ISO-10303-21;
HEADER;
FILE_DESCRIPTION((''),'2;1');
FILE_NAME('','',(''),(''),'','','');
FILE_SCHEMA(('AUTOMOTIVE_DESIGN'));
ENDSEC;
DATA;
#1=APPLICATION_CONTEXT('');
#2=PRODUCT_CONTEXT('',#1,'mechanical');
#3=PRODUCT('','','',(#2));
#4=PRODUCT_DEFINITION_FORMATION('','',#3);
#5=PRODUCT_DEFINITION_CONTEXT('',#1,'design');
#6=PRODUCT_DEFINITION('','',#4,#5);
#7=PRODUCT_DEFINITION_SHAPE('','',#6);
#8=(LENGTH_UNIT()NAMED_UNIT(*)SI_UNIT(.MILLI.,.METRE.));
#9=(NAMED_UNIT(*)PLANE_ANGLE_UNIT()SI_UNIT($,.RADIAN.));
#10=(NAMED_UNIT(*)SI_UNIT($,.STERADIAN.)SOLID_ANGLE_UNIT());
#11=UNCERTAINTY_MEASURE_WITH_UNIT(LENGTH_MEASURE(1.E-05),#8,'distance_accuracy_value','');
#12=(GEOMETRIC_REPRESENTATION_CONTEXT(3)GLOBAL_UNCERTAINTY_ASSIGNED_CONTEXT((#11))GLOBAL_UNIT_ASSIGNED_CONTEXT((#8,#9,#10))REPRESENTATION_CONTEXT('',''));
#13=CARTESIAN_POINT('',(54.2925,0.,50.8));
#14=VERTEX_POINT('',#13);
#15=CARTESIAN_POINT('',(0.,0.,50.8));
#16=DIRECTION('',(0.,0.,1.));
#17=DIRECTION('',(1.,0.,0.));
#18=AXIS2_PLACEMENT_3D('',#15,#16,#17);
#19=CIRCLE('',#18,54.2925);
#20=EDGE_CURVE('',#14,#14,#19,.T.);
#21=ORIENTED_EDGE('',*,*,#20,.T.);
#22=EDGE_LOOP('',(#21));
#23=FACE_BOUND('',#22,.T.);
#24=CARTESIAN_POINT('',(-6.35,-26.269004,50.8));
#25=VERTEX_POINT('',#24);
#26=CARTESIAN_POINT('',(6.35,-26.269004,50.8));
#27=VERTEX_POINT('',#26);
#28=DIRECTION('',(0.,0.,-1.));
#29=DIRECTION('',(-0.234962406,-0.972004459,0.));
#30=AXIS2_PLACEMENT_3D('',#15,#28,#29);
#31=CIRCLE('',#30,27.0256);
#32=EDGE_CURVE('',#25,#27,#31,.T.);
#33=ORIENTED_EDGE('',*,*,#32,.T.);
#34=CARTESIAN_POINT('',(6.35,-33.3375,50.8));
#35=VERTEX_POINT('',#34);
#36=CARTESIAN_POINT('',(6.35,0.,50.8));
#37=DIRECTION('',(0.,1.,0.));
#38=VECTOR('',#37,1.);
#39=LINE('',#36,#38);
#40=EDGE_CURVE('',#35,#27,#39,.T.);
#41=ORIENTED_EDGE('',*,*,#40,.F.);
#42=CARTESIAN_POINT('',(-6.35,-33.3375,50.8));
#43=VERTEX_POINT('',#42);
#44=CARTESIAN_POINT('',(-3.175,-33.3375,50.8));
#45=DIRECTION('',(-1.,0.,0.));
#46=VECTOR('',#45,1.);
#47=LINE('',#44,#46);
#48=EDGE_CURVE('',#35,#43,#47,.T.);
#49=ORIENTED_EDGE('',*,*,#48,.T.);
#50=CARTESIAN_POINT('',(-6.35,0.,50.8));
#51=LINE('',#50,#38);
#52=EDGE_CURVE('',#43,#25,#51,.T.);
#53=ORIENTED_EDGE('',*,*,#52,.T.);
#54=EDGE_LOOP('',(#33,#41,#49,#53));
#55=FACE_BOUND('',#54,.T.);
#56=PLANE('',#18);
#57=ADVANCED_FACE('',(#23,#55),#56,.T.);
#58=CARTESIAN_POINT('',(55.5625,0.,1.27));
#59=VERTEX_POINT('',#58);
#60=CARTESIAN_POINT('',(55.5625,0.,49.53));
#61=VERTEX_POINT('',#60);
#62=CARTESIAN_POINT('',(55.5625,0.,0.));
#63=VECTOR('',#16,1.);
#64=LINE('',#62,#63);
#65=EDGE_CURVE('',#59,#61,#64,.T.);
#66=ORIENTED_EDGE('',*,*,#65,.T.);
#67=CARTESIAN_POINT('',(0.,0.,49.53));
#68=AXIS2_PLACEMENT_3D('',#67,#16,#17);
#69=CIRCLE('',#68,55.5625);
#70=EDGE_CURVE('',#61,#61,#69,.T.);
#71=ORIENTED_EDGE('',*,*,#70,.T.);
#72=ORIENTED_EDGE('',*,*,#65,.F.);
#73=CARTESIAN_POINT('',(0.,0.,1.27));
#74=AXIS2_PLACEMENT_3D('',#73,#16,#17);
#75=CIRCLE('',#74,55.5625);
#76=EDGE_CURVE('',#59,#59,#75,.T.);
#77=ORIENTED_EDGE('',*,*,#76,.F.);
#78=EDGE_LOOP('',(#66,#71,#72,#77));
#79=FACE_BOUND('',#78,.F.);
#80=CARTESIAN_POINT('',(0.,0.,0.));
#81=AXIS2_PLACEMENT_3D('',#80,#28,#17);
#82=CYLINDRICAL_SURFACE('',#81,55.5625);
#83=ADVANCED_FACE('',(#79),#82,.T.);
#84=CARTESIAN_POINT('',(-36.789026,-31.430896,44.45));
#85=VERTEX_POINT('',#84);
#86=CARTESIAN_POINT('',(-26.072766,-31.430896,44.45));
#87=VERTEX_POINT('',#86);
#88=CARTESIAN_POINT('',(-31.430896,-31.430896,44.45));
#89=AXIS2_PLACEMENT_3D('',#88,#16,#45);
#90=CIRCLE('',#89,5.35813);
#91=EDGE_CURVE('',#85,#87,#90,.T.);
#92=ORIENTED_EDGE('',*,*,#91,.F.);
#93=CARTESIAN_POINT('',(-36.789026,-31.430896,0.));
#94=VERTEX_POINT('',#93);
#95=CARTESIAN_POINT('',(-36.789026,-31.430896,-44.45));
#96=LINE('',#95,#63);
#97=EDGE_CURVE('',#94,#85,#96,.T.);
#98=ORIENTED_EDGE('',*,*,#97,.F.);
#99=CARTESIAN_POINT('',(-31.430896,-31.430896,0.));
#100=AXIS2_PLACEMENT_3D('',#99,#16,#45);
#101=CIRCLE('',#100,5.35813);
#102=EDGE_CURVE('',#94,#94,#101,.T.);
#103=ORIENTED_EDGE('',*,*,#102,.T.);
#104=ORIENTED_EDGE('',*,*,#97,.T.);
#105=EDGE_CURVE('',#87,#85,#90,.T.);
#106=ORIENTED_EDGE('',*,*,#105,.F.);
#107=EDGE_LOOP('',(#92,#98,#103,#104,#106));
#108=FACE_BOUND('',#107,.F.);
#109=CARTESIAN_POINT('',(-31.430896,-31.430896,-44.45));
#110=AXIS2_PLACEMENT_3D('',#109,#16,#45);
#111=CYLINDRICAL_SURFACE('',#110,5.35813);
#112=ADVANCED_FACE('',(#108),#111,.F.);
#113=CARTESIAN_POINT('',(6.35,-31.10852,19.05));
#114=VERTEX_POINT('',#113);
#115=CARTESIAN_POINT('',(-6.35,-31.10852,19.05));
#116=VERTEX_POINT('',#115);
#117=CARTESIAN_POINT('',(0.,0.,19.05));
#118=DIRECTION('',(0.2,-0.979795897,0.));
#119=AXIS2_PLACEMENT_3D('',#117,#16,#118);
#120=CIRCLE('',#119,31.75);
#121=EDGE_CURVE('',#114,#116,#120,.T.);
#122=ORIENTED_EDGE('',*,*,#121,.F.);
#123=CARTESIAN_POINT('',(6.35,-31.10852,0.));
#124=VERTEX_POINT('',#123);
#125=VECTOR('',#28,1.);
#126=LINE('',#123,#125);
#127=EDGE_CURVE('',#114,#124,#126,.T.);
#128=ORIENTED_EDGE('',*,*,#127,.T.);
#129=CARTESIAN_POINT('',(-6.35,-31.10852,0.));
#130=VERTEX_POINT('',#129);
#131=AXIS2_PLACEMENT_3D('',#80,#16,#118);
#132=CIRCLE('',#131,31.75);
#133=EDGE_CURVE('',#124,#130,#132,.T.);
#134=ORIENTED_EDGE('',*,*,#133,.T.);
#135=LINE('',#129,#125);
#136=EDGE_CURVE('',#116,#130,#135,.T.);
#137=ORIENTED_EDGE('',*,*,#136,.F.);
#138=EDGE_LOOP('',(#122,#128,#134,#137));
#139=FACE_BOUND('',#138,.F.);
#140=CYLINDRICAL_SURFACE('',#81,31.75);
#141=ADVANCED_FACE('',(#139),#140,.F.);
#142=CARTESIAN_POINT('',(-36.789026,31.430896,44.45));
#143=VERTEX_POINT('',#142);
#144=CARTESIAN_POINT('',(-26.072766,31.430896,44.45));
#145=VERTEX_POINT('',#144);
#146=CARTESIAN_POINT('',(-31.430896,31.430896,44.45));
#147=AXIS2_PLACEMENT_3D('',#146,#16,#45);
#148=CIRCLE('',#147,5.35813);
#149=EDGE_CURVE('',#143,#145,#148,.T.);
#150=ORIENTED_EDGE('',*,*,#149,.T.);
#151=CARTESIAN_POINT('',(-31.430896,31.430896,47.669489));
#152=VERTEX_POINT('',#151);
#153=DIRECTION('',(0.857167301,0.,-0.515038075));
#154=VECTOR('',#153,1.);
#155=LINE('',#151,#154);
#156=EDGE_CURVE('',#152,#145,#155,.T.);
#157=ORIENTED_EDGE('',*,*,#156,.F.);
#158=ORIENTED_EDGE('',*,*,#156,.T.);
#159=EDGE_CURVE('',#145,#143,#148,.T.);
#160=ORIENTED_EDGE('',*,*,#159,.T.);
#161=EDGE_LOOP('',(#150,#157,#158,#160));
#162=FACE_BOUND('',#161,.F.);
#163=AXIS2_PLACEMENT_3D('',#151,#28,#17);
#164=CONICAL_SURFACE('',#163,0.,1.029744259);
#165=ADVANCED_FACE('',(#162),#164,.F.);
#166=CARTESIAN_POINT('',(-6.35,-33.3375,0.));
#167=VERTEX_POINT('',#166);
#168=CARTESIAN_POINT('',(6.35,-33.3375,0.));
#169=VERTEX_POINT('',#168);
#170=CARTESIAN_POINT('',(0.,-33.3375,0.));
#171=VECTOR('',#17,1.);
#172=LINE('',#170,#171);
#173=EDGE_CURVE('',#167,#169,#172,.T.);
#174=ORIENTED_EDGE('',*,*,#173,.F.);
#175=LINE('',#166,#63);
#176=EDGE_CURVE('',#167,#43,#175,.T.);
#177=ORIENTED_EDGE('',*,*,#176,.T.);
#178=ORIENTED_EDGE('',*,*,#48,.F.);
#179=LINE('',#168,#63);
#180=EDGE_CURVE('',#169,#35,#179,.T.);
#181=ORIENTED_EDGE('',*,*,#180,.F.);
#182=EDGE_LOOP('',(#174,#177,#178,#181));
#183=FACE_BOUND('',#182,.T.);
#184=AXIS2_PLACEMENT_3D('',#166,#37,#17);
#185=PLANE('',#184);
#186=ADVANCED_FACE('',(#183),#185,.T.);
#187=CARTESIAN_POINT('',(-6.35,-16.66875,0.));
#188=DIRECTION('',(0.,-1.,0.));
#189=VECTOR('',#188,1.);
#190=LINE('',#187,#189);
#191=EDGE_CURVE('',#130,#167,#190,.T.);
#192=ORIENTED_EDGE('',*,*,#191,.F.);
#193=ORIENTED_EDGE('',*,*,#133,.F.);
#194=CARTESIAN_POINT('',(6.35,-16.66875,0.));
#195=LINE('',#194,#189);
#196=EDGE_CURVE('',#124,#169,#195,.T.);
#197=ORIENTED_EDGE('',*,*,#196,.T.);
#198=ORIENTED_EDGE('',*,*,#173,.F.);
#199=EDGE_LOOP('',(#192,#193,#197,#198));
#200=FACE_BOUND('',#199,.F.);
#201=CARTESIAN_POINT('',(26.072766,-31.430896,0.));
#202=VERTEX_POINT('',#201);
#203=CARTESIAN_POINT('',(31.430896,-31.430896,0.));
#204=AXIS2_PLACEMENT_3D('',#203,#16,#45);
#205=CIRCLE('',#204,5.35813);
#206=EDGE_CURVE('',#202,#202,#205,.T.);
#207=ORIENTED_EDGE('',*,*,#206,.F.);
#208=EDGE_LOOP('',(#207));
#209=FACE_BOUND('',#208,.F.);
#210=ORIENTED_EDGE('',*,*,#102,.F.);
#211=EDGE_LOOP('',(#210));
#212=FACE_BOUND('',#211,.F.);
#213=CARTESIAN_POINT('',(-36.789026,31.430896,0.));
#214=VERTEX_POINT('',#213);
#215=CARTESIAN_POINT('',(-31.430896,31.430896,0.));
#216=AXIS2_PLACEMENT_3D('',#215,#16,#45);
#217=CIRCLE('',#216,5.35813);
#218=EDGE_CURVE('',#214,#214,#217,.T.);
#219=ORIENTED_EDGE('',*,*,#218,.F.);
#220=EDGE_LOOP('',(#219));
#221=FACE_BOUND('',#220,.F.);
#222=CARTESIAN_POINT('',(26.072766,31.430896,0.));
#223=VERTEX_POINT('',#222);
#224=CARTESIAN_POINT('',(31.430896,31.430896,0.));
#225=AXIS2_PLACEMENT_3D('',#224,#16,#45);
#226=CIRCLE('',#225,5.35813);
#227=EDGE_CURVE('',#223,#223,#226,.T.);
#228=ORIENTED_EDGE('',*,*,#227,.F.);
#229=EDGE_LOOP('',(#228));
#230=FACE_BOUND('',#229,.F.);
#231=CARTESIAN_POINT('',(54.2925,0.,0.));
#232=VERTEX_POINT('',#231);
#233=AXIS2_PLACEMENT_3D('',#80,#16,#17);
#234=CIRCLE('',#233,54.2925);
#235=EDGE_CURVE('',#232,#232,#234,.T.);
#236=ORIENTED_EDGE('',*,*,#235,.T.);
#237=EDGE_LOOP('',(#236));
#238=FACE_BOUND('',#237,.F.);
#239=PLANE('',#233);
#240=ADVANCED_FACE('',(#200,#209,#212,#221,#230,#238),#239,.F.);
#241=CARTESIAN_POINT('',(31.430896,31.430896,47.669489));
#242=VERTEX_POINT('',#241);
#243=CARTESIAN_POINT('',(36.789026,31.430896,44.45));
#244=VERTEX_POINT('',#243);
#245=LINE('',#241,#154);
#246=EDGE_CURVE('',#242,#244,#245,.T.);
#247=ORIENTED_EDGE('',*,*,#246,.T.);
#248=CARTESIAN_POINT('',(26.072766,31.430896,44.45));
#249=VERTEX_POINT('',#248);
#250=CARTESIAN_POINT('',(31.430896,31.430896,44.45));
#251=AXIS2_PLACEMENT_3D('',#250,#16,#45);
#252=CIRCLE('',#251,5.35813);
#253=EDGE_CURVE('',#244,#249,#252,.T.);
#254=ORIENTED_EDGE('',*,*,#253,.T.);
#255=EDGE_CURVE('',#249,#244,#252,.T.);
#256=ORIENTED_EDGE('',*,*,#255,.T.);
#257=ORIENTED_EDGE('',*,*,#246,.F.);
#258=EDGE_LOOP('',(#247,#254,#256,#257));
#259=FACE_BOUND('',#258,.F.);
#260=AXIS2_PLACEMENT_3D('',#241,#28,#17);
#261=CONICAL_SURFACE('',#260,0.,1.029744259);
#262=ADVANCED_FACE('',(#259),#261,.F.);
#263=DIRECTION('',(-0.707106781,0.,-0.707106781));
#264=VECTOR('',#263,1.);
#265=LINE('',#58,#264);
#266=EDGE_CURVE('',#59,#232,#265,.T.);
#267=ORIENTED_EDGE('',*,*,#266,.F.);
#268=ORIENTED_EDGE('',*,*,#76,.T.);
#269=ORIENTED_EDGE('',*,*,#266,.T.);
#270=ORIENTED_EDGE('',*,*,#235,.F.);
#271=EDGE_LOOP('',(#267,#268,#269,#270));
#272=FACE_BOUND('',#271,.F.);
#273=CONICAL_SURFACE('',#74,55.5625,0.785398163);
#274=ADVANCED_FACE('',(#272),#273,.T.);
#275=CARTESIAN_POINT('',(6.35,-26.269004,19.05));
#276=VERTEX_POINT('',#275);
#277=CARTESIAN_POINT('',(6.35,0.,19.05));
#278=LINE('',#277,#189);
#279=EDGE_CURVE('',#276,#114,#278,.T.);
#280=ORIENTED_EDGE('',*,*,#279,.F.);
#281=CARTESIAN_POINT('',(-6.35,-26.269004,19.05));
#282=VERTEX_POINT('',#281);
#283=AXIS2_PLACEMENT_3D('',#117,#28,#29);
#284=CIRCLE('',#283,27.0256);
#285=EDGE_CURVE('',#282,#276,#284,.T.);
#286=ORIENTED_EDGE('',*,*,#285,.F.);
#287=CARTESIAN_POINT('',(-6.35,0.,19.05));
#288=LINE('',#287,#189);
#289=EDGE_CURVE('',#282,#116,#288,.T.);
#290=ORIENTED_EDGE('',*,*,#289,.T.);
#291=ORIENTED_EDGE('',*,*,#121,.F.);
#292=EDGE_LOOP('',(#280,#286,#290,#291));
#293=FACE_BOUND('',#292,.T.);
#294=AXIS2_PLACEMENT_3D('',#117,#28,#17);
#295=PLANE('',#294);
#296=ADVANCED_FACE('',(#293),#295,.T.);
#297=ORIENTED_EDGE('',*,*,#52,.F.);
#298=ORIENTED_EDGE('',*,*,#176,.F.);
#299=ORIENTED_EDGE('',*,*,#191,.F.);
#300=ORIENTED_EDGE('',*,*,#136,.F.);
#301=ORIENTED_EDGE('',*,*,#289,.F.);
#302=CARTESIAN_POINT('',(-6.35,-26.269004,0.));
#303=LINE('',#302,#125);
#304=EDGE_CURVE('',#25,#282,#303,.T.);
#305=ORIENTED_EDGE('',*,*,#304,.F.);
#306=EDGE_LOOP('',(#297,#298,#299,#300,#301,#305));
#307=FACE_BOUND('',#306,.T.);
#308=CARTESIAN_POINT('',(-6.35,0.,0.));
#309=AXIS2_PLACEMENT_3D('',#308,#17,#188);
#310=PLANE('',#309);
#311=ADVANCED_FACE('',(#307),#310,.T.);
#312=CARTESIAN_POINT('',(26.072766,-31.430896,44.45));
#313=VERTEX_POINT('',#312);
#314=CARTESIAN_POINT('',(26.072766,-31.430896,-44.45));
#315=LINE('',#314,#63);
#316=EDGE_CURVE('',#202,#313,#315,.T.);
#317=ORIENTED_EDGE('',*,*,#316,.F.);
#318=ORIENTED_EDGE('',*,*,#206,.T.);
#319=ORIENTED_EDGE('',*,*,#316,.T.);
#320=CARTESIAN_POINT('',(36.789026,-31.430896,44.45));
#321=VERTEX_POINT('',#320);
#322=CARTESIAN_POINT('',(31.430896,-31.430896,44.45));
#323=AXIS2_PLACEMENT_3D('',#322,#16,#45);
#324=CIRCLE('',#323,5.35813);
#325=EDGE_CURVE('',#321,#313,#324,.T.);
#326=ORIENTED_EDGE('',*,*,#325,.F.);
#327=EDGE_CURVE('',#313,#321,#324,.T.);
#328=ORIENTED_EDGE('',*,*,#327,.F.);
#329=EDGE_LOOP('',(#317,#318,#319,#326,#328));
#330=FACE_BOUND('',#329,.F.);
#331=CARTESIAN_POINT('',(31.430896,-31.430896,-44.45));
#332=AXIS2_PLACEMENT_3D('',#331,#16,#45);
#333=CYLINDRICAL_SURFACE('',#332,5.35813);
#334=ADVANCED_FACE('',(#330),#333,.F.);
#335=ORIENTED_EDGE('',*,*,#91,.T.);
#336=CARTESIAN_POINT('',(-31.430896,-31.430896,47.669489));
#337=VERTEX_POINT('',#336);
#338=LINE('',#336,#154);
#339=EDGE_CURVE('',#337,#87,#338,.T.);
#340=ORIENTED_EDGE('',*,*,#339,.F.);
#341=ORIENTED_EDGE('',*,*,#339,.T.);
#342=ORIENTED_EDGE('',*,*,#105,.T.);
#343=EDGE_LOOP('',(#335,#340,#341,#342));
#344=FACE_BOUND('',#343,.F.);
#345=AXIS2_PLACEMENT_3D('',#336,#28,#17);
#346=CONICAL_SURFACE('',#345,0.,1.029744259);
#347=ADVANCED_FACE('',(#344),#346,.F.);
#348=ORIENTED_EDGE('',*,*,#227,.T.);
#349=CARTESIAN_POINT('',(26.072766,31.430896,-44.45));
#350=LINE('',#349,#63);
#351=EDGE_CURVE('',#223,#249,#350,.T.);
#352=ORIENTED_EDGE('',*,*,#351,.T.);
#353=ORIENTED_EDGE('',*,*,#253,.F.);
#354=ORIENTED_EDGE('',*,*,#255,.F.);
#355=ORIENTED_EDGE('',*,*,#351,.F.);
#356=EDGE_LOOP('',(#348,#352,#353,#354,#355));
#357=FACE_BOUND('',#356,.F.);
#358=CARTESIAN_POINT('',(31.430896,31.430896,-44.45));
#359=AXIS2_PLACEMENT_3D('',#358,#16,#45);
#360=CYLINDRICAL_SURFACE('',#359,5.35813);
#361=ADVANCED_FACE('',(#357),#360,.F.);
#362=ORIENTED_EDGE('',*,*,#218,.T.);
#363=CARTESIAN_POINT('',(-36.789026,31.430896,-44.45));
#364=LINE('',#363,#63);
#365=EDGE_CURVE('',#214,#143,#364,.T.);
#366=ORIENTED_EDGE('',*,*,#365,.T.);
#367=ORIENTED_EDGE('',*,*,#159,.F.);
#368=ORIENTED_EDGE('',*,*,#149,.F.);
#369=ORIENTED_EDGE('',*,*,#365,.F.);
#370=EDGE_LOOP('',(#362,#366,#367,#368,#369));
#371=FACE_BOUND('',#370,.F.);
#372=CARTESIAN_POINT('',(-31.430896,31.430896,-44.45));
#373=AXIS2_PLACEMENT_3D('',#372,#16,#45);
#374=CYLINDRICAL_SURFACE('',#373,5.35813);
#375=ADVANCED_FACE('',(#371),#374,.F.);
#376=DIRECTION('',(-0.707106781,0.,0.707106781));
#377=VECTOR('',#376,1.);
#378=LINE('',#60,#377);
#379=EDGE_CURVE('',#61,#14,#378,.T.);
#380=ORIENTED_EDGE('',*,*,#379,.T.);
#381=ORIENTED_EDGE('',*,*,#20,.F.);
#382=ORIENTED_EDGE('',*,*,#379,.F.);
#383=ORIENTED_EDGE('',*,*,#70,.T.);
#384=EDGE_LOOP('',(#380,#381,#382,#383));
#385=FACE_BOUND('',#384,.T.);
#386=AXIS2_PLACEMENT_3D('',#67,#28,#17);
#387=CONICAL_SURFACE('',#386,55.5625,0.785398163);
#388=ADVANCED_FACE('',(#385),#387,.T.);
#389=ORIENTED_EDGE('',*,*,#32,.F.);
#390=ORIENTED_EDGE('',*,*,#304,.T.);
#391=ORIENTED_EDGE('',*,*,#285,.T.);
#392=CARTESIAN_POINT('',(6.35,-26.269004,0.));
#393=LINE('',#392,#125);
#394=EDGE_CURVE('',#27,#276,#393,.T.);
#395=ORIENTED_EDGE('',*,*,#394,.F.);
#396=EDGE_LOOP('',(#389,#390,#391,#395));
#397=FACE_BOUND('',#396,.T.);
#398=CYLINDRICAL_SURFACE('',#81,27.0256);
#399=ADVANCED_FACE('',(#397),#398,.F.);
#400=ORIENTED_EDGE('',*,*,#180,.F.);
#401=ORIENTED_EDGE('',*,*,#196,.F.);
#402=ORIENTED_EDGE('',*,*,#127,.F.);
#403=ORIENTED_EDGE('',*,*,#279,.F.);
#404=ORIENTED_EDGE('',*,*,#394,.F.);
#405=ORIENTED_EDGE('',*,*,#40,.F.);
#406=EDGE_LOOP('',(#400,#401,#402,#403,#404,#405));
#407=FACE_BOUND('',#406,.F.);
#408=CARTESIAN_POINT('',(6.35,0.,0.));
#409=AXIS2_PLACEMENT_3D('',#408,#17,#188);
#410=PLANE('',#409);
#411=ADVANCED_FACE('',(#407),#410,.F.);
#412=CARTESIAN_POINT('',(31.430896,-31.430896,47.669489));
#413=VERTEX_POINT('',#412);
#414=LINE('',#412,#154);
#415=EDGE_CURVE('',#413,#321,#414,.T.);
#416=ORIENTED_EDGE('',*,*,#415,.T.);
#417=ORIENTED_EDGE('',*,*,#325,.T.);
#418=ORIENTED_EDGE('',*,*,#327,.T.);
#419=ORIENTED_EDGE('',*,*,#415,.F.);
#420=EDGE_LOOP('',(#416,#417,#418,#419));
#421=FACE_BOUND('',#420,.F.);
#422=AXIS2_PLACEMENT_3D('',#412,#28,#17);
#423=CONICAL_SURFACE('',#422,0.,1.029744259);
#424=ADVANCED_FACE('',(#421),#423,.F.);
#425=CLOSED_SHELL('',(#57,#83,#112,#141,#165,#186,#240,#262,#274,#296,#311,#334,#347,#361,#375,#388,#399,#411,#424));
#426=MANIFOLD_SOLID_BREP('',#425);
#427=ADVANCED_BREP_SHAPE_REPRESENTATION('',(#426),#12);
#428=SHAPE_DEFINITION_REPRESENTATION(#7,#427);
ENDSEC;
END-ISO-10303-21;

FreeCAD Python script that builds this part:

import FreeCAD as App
import Part
import Sketcher
Q = App.Units.Quantity


def edges_at(feature, points):
    """Names of the edges that pass closest to the given points."""
    edges = feature.Shape.Edges
    near = lambda p: min(range(len(edges)), key=lambda i: edges[i].distToShape(Part.Vertex(*p))[0])
    return sorted({f"Edge{near(p) + 1}" for p in points})

doc = App.newDocument("Part")
params = doc.addObject("Spreadsheet::Sheet", "Params")
for row, (alias, value) in enumerate([
    ("sketch1_diameter", "4.375 in"),
    ("sketch1_diameter2", "2.128 in"),
    ("pad1_length", "2 in"),
    ("sketch2_diameter", "2.5 in"),
    ("pocket1_length", "0.75 in"),
    ("sketch3_width", "0.5 in"),
    ("sketch3_height", "1.3125 in"),
    ("chamfer_size", "0.05 in"),
    ("hole_diameter", "0.4219 in"),
    ("hole_depth", "1.75 in"),
], start=1):
    params.set(f"A{row}", alias)
    params.set(f"B{row}", "=" + value)
    params.setAlias(f"B{row}", alias)

body = doc.addObject("PartDesign::Body", "Body")

# Sketch on XY plane
sketch1 = body.newObject("Sketcher::SketchObject", "Sketch")
sketch1.AttachmentSupport = (doc.getObject("XY_Plane"), [""])
sketch1.MapMode = "FlatFace"
sketch1.addGeometry(Part.Circle(App.Vector(0, 0, 0), App.Vector(0, 0, 1), 56), False)
sketch1.addGeometry(Part.Circle(App.Vector(0, 0, 0), App.Vector(0, 0, 1), 27), False)
sketch1.addConstraint(Sketcher.Constraint("Coincident", 0, 3, -1, 1))
sketch1.addConstraint(Sketcher.Constraint("Coincident", 1, 3, -1, 1))
sketch1.addConstraint(Sketcher.Constraint("Diameter", 0, Q("4.375 in")))
sketch1.addConstraint(Sketcher.Constraint("Diameter", 1, Q("2.128 in")))
sketch1.setExpression("Constraints[2]", "Params.sketch1_diameter")
sketch1.setExpression("Constraints[3]", "Params.sketch1_diameter2")
pad1 = body.newObject("PartDesign::Pad", "Pad")
pad1.Profile = sketch1
pad1.setExpression("Length", "Params.pad1_length")

# Sketch on XY plane
sketch2 = body.newObject("Sketcher::SketchObject", "Sketch001")
sketch2.AttachmentSupport = (doc.getObject("XY_Plane"), [""])
sketch2.MapMode = "FlatFace"
sketch2.addGeometry(Part.Circle(App.Vector(0, 0, 0), App.Vector(0, 0, 1), 32), False)
sketch2.addConstraint(Sketcher.Constraint("Coincident", 0, 3, -1, 1))
sketch2.addConstraint(Sketcher.Constraint("Diameter", 0, Q("2.5 in")))
sketch2.setExpression("Constraints[1]", "Params.sketch2_diameter")
pocket1 = body.newObject("PartDesign::Pocket", "Pocket")
pocket1.Profile = sketch2
pocket1.setExpression("Length", "Params.pocket1_length")
pocket1.Reversed = True

# Sketch on XY plane
sketch3 = body.newObject("Sketcher::SketchObject", "Sketch002")
sketch3.AttachmentSupport = (doc.getObject("XY_Plane"), [""])
sketch3.MapMode = "FlatFace"
sketch3.addGeometry(Part.LineSegment(App.Vector(-6, -33, 0), App.Vector(-6, 0, 0)), False)
sketch3.addGeometry(Part.LineSegment(App.Vector(-6, 0, 0), App.Vector(6, 0, 0)), False)
sketch3.addGeometry(Part.LineSegment(App.Vector(6, 0, 0), App.Vector(6, -33, 0)), False)
sketch3.addGeometry(Part.LineSegment(App.Vector(6, -33, 0), App.Vector(-6, -33, 0)), False)
sketch3.addConstraint(Sketcher.Constraint("Coincident", 0, 2, 1, 1))
sketch3.addConstraint(Sketcher.Constraint("Coincident", 1, 2, 2, 1))
sketch3.addConstraint(Sketcher.Constraint("Coincident", 2, 2, 3, 1))
sketch3.addConstraint(Sketcher.Constraint("Coincident", 3, 2, 0, 1))
sketch3.addConstraint(Sketcher.Constraint("Vertical", 0))
sketch3.addConstraint(Sketcher.Constraint("Horizontal", 1))
sketch3.addConstraint(Sketcher.Constraint("Vertical", 2))
sketch3.addConstraint(Sketcher.Constraint("Horizontal", 3))
sketch3.addConstraint(Sketcher.Constraint("Symmetric", 0, 2, 1, 2, -1, 1))
sketch3.addConstraint(Sketcher.Constraint("DistanceX", 1, 1, 1, 2, Q("0.5 in")))
sketch3.addConstraint(Sketcher.Constraint("DistanceY", 0, 1, 0, 2, Q("1.3125 in")))
sketch3.setExpression("Constraints[9]", "Params.sketch3_width")
sketch3.setExpression("Constraints[10]", "Params.sketch3_height")
pocket2 = body.newObject("PartDesign::Pocket", "Pocket001")
pocket2.Profile = sketch3
pocket2.Type = "ThroughAll"
pocket2.Reversed = True
doc.recompute()

chamfer = body.newObject("PartDesign::Chamfer", "Chamfer")
chamfer.Base = (pocket2, edges_at(pocket2, [(-55.562, 0, 50.8), (-55.562, 0, 0)]))
chamfer.setExpression("Size", "Params.chamfer_size")

# Sketch on XY plane
sketch4 = body.newObject("Sketcher::SketchObject", "Sketch003")
sketch4.AttachmentSupport = (doc.getObject("XY_Plane"), [""])
sketch4.MapMode = "FlatFace"
sketch4.addGeometry(Part.Circle(App.Vector(-31, 31, 0), App.Vector(0, 0, 1), 5), False)
sketch4.addGeometry(Part.Circle(App.Vector(-31, -31, 0), App.Vector(0, 0, 1), 5), False)
sketch4.addGeometry(Part.Circle(App.Vector(31, -31, 0), App.Vector(0, 0, 1), 5), False)
sketch4.addGeometry(Part.Circle(App.Vector(31, 31, 0), App.Vector(0, 0, 1), 5), False)
sketch4.addConstraint(Sketcher.Constraint("Equal", 0, 1))
sketch4.addConstraint(Sketcher.Constraint("Equal", 1, 2))
sketch4.addConstraint(Sketcher.Constraint("Equal", 2, 3))
sketch4.addConstraint(Sketcher.Constraint("Symmetric", 0, 3, 2, 3, -1, 1))
sketch4.addConstraint(Sketcher.Constraint("Symmetric", 1, 3, 3, 3, -1, 1))
sketch4.addConstraint(Sketcher.Constraint("Symmetric", 1, 3, 2, 3, -2))
sketch4.addConstraint(Sketcher.Constraint("Diameter", 0, Q("0.4219 in")))
sketch4.addConstraint(Sketcher.Constraint("DistanceX", 0, 3, -1, 1, Q("31.430896 mm")))
sketch4.addConstraint(Sketcher.Constraint("DistanceY", -1, 1, 0, 3, Q("31.430896 mm")))
doc.recompute()
hole = body.newObject("PartDesign::Hole", "Hole")
hole.Profile = sketch4
hole.ThreadType = "None"
hole.setExpression("Diameter", "Params.hole_diameter")
hole.DepthType = "Dimension"
hole.setExpression("Depth", "Params.hole_depth")
hole.DrillPoint = "Angled"
hole.DrillPointAngle = 118
hole.Reversed = True

doc.recompute()
